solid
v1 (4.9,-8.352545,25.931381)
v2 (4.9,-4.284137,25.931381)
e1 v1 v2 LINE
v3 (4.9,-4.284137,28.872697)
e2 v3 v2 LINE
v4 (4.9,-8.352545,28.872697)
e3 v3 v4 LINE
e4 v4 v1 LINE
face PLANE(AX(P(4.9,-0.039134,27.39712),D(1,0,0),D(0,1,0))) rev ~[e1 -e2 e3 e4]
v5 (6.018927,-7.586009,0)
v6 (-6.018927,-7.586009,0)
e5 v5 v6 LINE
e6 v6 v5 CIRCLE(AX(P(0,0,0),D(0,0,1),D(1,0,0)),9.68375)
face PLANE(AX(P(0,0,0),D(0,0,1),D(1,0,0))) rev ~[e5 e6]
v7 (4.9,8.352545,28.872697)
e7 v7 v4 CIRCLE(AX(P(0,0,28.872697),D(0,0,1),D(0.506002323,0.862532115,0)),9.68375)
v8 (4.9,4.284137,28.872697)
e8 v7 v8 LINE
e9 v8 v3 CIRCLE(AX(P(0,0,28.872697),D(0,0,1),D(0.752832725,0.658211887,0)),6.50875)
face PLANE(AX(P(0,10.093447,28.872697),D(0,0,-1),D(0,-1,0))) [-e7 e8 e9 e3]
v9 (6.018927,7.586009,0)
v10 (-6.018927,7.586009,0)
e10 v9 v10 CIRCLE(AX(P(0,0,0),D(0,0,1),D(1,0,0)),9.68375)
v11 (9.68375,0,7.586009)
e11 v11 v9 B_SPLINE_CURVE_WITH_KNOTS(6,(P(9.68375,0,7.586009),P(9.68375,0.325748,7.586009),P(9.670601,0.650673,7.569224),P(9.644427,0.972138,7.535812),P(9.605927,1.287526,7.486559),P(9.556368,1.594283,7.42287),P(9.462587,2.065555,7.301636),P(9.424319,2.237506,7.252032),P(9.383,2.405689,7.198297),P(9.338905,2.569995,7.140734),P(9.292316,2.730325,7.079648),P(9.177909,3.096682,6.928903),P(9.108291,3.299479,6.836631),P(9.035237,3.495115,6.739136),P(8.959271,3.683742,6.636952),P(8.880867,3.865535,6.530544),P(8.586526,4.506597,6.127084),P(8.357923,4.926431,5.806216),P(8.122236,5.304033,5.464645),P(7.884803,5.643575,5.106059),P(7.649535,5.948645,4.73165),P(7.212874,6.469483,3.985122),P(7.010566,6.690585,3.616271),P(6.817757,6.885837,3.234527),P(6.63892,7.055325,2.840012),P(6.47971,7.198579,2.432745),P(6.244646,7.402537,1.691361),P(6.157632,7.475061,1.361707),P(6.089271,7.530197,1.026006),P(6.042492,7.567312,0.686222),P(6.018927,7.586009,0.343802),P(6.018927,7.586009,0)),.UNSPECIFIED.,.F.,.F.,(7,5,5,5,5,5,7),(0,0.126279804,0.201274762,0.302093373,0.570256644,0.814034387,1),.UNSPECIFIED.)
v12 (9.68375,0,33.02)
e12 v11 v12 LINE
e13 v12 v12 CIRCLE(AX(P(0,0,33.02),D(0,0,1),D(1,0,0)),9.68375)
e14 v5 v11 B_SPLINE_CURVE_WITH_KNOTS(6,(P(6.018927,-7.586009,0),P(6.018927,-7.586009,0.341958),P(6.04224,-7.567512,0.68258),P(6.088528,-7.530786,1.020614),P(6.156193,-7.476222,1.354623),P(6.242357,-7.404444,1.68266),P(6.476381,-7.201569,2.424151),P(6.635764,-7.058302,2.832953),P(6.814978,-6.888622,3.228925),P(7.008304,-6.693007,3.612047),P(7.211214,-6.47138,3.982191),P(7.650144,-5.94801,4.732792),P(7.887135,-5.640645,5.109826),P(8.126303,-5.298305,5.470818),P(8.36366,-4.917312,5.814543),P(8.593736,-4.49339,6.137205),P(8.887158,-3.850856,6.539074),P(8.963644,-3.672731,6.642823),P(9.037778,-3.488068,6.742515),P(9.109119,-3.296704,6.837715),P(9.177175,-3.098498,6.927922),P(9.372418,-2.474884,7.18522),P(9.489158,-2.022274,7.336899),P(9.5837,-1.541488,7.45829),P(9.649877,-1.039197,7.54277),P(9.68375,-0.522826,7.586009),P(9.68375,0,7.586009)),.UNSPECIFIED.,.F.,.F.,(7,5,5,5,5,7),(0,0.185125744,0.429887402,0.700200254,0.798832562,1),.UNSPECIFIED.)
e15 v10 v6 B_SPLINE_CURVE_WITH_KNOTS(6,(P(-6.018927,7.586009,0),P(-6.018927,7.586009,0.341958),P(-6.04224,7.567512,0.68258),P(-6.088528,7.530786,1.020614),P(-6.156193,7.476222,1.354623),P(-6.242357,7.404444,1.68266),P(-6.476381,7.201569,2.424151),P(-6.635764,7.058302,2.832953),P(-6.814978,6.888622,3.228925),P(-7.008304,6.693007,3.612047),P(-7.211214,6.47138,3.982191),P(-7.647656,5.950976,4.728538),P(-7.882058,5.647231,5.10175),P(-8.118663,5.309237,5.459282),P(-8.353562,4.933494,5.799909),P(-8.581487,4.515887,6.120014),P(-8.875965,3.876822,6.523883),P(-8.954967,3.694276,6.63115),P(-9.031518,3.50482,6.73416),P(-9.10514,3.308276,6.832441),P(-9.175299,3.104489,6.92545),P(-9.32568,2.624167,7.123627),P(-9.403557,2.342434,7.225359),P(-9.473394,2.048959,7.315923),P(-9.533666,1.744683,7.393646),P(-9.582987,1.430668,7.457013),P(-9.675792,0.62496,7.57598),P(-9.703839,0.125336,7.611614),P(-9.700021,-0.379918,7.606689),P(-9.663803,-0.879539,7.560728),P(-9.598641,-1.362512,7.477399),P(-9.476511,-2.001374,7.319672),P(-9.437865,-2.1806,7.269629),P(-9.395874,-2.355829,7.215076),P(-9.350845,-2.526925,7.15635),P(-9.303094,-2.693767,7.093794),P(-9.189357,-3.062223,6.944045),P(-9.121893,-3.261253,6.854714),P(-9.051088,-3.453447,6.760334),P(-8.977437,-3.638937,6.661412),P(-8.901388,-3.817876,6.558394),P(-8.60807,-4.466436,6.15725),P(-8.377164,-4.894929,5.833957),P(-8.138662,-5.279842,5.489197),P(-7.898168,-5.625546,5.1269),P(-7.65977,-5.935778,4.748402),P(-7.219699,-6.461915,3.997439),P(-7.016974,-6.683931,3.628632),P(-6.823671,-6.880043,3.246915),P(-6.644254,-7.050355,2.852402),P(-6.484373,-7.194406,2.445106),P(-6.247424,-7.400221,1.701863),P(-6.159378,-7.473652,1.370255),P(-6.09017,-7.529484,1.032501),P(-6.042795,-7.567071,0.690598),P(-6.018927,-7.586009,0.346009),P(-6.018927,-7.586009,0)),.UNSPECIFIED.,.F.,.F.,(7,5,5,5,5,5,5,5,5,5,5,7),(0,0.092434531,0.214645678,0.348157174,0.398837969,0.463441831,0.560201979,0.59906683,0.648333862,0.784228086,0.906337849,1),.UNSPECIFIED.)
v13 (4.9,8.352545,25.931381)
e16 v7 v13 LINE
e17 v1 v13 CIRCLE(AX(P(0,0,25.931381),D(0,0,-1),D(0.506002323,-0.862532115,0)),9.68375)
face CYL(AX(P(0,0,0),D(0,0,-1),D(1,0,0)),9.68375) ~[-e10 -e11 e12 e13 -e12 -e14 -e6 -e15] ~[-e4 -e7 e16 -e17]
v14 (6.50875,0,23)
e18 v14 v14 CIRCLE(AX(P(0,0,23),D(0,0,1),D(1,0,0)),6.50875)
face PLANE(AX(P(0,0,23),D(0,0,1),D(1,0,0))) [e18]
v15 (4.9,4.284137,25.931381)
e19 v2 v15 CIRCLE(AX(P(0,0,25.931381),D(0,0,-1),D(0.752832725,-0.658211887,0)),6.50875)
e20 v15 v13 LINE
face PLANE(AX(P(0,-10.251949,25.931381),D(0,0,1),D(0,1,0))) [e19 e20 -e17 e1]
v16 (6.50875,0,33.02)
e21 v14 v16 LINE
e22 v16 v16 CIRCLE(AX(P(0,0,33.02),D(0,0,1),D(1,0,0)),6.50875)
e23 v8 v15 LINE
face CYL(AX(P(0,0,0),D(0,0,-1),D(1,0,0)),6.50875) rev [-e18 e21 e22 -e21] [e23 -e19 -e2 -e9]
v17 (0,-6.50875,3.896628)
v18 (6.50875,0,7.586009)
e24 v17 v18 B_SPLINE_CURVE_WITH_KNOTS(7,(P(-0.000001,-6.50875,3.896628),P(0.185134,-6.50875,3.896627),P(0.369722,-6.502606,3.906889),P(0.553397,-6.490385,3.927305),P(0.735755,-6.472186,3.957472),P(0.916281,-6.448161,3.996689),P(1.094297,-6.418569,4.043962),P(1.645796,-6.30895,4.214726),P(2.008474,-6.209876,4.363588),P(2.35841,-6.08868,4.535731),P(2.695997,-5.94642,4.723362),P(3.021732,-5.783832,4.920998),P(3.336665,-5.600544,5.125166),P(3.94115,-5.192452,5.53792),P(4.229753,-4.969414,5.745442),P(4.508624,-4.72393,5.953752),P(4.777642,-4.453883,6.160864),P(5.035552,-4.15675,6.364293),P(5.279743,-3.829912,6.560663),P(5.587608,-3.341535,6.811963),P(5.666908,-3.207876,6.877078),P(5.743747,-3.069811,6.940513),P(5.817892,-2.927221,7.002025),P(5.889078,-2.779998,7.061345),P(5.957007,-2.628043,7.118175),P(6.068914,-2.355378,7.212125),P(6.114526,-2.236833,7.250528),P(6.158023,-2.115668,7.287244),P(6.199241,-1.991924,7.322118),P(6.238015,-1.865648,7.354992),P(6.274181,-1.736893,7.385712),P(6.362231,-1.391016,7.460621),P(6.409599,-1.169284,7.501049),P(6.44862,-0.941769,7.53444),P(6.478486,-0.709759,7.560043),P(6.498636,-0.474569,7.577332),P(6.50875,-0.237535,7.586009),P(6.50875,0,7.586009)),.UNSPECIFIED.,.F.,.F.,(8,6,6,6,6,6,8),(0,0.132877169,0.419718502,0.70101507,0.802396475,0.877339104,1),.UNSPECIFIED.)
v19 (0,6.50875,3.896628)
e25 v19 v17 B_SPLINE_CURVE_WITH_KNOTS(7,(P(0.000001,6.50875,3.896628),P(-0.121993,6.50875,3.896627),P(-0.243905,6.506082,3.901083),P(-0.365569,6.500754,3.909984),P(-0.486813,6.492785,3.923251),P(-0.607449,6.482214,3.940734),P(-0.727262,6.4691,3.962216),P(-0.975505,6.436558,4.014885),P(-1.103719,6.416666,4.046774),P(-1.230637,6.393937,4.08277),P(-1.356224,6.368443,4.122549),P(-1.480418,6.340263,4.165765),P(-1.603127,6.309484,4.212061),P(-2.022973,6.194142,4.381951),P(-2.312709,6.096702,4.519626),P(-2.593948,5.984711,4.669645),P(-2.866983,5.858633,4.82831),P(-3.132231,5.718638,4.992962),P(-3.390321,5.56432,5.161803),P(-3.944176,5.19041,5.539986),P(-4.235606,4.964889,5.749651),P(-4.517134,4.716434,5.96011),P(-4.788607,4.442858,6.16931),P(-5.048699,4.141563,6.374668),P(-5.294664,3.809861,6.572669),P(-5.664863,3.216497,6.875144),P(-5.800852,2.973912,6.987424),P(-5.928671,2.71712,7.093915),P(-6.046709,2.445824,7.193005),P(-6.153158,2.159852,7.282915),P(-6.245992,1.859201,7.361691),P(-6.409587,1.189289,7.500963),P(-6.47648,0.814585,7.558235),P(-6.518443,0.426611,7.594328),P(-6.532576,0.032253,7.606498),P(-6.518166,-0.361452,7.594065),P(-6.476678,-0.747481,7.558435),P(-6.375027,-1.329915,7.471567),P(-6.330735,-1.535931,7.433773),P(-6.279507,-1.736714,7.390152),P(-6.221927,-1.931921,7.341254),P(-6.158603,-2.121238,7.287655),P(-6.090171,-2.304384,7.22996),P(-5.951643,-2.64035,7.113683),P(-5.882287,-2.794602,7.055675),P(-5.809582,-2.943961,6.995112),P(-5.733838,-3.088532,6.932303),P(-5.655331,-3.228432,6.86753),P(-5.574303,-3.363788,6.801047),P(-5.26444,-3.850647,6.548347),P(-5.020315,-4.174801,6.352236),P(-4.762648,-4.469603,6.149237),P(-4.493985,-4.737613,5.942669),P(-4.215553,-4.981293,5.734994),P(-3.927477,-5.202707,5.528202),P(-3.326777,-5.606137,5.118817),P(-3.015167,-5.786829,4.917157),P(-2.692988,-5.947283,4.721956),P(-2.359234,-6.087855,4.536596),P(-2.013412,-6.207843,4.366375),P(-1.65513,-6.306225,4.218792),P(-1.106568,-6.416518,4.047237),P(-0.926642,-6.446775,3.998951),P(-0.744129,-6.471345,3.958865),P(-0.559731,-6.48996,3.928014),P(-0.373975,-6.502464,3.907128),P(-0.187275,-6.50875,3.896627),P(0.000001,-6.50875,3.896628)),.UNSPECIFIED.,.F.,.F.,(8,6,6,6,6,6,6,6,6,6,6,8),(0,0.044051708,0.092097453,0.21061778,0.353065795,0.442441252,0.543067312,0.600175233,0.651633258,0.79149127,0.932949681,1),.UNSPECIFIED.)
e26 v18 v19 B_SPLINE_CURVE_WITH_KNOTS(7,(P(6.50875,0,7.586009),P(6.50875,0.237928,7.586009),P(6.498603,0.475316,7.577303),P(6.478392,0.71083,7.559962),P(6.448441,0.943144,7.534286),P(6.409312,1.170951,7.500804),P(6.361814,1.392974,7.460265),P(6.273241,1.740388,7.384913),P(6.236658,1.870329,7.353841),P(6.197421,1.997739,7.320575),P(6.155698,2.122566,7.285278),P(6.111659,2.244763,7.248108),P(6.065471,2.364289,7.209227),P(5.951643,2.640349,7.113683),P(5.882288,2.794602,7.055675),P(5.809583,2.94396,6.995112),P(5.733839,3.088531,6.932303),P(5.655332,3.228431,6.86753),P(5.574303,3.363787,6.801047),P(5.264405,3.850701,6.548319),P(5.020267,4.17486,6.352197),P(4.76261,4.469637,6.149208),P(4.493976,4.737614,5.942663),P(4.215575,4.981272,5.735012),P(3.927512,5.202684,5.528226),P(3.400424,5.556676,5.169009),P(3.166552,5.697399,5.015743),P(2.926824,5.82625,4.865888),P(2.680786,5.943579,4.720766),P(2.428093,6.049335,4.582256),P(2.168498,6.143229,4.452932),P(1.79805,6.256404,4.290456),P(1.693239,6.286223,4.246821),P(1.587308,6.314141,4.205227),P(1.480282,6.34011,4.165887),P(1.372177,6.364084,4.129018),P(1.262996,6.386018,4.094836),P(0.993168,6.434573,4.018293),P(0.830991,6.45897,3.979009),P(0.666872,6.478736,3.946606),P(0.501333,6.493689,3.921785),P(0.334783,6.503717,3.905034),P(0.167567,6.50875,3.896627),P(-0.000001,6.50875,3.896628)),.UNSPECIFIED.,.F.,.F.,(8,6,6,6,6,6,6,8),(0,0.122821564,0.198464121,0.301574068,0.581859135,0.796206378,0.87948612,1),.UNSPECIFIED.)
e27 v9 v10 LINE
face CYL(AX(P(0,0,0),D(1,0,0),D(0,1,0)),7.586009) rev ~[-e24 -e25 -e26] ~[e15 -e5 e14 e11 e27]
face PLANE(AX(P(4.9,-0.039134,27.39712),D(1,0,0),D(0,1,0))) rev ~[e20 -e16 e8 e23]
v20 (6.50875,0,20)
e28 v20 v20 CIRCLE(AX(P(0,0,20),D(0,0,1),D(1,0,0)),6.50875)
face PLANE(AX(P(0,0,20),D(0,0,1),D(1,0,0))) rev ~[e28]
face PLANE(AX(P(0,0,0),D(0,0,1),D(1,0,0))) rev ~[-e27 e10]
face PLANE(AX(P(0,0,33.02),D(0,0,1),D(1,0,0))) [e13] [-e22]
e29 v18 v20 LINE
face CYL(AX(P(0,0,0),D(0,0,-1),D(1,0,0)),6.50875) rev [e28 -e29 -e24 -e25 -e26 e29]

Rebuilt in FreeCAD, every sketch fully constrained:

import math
import FreeCAD as App
import Part
import Sketcher

V = App.Vector

doc = App.newDocument("Part")
body = doc.addObject("PartDesign::Body", "Body")

sketch1 = body.newObject("Sketcher::SketchObject", "Sketch")
sketch1.AttachmentSupport = (doc.getObject("XY_Plane"), [""])
sketch1.MapMode = "FlatFace"
sketch1.addGeometry([
    Part.Circle(V(0, 0, 0), V(0, 0, 1), 10),
    Part.Circle(V(0, 0, 0), V(0, 0, 1), 7),
], False)
sketch1.addConstraint([
    Sketcher.Constraint("Coincident", 0, 3, -1, 1),
    Sketcher.Constraint("Coincident", 1, 3, -1, 1),
    Sketcher.Constraint("Diameter", 0, 19.3675),
    Sketcher.Constraint("Diameter", 1, 13.0175),
])
pad1 = body.newObject("PartDesign::Pad", "Pad")
pad1.Profile = sketch1
pad1.Length = 33.02

sketch2 = body.newObject("Sketcher::SketchObject", "Sketch001")
sketch2.AttachmentSupport = (doc.getObject("YZ_Plane"), [""])
sketch2.MapMode = "FlatFace"
sketch2.addGeometry([
    Part.ArcOfCircle(Part.Circle(V(0, 0, 0), V(0, 0, 1), 8), math.radians(0), math.radians(180)),
    Part.LineSegment(V(-8, 0, 0), V(8, 0, 0)),
], False)
sketch2.addConstraint([
    Sketcher.Constraint("Coincident", 0, 1, 1, 2),
    Sketcher.Constraint("Coincident", 1, 1, 0, 2),
    Sketcher.Constraint("Horizontal", 1),
    Sketcher.Constraint("Coincident", 0, 3, -1, 1),
    Sketcher.Constraint("PointOnObject", 0, 1, -1),
    Sketcher.Constraint("Radius", 0, 7.586009),
])
pocket1 = body.newObject("PartDesign::Pocket", "Pocket")
pocket1.Profile = sketch2
pocket1.Length = 25

sketch3 = body.newObject("Sketcher::SketchObject", "Sketch002")
sketch3.AttachmentSupport = (doc.getObject("YZ_Plane"), [""])
sketch3.MapMode = "FlatFace"
sketch3.addGeometry([
    Part.ArcOfCircle(Part.Circle(V(0, 0, 0), V(0, 0, 1), 8), math.radians(0), math.radians(180)),
    Part.LineSegment(V(-8, 0, 0), V(8, 0, 0)),
], False)
sketch3.addConstraint([
    Sketcher.Constraint("Coincident", 0, 1, 1, 2),
    Sketcher.Constraint("Coincident", 1, 1, 0, 2),
    Sketcher.Constraint("Horizontal", 1),
    Sketcher.Constraint("Coincident", 0, 3, -1, 1),
    Sketcher.Constraint("PointOnObject", 0, 1, -1),
    Sketcher.Constraint("Radius", 0, 7.586009),
])
pocket2 = body.newObject("PartDesign::Pocket", "Pocket001")
pocket2.Profile = sketch3
pocket2.Length = 54.6
pocket2.Reversed = True

sketch4 = body.newObject("Sketcher::SketchObject", "Sketch003")
sketch4.AttachmentSupport = (doc.getObject("XY_Plane"), [""])
sketch4.MapMode = "FlatFace"
sketch4.AttachmentOffset = App.Placement(V(0, 0, 20), App.Rotation())
sketch4.addGeometry(Part.Circle(V(0, 0, 0), V(0, 0, 1), 7), False)
sketch4.addConstraint([
    Sketcher.Constraint("Coincident", 0, 3, -1, 1),
    Sketcher.Constraint("Diameter", 0, 13.0175),
])
pad2 = body.newObject("PartDesign::Pad", "Pad001")
pad2.Profile = sketch4
pad2.Length = 3

sketch5 = body.newObject("Sketcher::SketchObject", "Sketch004")
sketch5.AttachmentSupport = (doc.getObject("YZ_Plane"), [""])
sketch5.MapMode = "FlatFace"
sketch5.addGeometry([
    Part.LineSegment(V(10.2, 25.9, 0), V(10.1, 28.9, 0)),
    Part.LineSegment(V(10.1, 28.9, 0), V(-10.3, 28.9, 0)),
    Part.LineSegment(V(-10.3, 28.9, 0), V(-10.3, 25.9, 0)),
    Part.LineSegment(V(-10.3, 25.9, 0), V(10.2, 25.9, 0)),
], False)
sketch5.addConstraint([
    Sketcher.Constraint("Coincident", 0, 2, 1, 1),
    Sketcher.Constraint("Coincident", 1, 2, 2, 1),
    Sketcher.Constraint("Coincident", 2, 2, 3, 1),
    Sketcher.Constraint("Coincident", 3, 2, 0, 1),
    Sketcher.Constraint("Horizontal", 1),
    Sketcher.Constraint("Vertical", 2),
    Sketcher.Constraint("Horizontal", 3),
    Sketcher.Constraint("DistanceX", 1, 2, 1, 1, 20.345396),
    Sketcher.Constraint("DistanceX", 3, 1, 3, 2, 20.501714),
    Sketcher.Constraint("DistanceY", 2, 2, 2, 1, 2.941316),
    Sketcher.Constraint("DistanceX", 1, 2, -1, 1, 10.251949),
    Sketcher.Constraint("DistanceY", -1, 1, 2, 2, 25.931381),
])
pocket3 = body.newObject("PartDesign::Pocket", "Pocket002")
pocket3.Profile = sketch5
pocket3.Length = 25

sketch6 = body.newObject("Sketcher::SketchObject", "Sketch005")
sketch6.AttachmentSupport = (doc.getObject("YZ_Plane"), [""])
sketch6.MapMode = "FlatFace"
sketch6.addGeometry([
    Part.LineSegment(V(10.2, 25.9, 0), V(10.1, 28.9, 0)),
    Part.LineSegment(V(10.1, 28.9, 0), V(-10.3, 28.9, 0)),
    Part.LineSegment(V(-10.3, 28.9, 0), V(-10.3, 25.9, 0)),
    Part.LineSegment(V(-10.3, 25.9, 0), V(10.2, 25.9, 0)),
], False)
sketch6.addConstraint([
    Sketcher.Constraint("Coincident", 0, 2, 1, 1),
    Sketcher.Constraint("Coincident", 1, 2, 2, 1),
    Sketcher.Constraint("Coincident", 2, 2, 3, 1),
    Sketcher.Constraint("Coincident", 3, 2, 0, 1),
    Sketcher.Constraint("Horizontal", 1),
    Sketcher.Constraint("Vertical", 2),
    Sketcher.Constraint("Horizontal", 3),
    Sketcher.Constraint("DistanceX", 1, 2, 1, 1, 20.345396),
    Sketcher.Constraint("DistanceX", 3, 1, 3, 2, 20.501714),
    Sketcher.Constraint("DistanceY", 2, 2, 2, 1, 2.941316),
    Sketcher.Constraint("DistanceX", 1, 2, -1, 1, 10.251949),
    Sketcher.Constraint("DistanceY", -1, 1, 2, 2, 25.931381),
])
pocket4 = body.newObject("PartDesign::Pocket", "Pocket003")
pocket4.Profile = sketch6
pocket4.Length = 4.9
pocket4.Reversed = True

doc.recompute()
